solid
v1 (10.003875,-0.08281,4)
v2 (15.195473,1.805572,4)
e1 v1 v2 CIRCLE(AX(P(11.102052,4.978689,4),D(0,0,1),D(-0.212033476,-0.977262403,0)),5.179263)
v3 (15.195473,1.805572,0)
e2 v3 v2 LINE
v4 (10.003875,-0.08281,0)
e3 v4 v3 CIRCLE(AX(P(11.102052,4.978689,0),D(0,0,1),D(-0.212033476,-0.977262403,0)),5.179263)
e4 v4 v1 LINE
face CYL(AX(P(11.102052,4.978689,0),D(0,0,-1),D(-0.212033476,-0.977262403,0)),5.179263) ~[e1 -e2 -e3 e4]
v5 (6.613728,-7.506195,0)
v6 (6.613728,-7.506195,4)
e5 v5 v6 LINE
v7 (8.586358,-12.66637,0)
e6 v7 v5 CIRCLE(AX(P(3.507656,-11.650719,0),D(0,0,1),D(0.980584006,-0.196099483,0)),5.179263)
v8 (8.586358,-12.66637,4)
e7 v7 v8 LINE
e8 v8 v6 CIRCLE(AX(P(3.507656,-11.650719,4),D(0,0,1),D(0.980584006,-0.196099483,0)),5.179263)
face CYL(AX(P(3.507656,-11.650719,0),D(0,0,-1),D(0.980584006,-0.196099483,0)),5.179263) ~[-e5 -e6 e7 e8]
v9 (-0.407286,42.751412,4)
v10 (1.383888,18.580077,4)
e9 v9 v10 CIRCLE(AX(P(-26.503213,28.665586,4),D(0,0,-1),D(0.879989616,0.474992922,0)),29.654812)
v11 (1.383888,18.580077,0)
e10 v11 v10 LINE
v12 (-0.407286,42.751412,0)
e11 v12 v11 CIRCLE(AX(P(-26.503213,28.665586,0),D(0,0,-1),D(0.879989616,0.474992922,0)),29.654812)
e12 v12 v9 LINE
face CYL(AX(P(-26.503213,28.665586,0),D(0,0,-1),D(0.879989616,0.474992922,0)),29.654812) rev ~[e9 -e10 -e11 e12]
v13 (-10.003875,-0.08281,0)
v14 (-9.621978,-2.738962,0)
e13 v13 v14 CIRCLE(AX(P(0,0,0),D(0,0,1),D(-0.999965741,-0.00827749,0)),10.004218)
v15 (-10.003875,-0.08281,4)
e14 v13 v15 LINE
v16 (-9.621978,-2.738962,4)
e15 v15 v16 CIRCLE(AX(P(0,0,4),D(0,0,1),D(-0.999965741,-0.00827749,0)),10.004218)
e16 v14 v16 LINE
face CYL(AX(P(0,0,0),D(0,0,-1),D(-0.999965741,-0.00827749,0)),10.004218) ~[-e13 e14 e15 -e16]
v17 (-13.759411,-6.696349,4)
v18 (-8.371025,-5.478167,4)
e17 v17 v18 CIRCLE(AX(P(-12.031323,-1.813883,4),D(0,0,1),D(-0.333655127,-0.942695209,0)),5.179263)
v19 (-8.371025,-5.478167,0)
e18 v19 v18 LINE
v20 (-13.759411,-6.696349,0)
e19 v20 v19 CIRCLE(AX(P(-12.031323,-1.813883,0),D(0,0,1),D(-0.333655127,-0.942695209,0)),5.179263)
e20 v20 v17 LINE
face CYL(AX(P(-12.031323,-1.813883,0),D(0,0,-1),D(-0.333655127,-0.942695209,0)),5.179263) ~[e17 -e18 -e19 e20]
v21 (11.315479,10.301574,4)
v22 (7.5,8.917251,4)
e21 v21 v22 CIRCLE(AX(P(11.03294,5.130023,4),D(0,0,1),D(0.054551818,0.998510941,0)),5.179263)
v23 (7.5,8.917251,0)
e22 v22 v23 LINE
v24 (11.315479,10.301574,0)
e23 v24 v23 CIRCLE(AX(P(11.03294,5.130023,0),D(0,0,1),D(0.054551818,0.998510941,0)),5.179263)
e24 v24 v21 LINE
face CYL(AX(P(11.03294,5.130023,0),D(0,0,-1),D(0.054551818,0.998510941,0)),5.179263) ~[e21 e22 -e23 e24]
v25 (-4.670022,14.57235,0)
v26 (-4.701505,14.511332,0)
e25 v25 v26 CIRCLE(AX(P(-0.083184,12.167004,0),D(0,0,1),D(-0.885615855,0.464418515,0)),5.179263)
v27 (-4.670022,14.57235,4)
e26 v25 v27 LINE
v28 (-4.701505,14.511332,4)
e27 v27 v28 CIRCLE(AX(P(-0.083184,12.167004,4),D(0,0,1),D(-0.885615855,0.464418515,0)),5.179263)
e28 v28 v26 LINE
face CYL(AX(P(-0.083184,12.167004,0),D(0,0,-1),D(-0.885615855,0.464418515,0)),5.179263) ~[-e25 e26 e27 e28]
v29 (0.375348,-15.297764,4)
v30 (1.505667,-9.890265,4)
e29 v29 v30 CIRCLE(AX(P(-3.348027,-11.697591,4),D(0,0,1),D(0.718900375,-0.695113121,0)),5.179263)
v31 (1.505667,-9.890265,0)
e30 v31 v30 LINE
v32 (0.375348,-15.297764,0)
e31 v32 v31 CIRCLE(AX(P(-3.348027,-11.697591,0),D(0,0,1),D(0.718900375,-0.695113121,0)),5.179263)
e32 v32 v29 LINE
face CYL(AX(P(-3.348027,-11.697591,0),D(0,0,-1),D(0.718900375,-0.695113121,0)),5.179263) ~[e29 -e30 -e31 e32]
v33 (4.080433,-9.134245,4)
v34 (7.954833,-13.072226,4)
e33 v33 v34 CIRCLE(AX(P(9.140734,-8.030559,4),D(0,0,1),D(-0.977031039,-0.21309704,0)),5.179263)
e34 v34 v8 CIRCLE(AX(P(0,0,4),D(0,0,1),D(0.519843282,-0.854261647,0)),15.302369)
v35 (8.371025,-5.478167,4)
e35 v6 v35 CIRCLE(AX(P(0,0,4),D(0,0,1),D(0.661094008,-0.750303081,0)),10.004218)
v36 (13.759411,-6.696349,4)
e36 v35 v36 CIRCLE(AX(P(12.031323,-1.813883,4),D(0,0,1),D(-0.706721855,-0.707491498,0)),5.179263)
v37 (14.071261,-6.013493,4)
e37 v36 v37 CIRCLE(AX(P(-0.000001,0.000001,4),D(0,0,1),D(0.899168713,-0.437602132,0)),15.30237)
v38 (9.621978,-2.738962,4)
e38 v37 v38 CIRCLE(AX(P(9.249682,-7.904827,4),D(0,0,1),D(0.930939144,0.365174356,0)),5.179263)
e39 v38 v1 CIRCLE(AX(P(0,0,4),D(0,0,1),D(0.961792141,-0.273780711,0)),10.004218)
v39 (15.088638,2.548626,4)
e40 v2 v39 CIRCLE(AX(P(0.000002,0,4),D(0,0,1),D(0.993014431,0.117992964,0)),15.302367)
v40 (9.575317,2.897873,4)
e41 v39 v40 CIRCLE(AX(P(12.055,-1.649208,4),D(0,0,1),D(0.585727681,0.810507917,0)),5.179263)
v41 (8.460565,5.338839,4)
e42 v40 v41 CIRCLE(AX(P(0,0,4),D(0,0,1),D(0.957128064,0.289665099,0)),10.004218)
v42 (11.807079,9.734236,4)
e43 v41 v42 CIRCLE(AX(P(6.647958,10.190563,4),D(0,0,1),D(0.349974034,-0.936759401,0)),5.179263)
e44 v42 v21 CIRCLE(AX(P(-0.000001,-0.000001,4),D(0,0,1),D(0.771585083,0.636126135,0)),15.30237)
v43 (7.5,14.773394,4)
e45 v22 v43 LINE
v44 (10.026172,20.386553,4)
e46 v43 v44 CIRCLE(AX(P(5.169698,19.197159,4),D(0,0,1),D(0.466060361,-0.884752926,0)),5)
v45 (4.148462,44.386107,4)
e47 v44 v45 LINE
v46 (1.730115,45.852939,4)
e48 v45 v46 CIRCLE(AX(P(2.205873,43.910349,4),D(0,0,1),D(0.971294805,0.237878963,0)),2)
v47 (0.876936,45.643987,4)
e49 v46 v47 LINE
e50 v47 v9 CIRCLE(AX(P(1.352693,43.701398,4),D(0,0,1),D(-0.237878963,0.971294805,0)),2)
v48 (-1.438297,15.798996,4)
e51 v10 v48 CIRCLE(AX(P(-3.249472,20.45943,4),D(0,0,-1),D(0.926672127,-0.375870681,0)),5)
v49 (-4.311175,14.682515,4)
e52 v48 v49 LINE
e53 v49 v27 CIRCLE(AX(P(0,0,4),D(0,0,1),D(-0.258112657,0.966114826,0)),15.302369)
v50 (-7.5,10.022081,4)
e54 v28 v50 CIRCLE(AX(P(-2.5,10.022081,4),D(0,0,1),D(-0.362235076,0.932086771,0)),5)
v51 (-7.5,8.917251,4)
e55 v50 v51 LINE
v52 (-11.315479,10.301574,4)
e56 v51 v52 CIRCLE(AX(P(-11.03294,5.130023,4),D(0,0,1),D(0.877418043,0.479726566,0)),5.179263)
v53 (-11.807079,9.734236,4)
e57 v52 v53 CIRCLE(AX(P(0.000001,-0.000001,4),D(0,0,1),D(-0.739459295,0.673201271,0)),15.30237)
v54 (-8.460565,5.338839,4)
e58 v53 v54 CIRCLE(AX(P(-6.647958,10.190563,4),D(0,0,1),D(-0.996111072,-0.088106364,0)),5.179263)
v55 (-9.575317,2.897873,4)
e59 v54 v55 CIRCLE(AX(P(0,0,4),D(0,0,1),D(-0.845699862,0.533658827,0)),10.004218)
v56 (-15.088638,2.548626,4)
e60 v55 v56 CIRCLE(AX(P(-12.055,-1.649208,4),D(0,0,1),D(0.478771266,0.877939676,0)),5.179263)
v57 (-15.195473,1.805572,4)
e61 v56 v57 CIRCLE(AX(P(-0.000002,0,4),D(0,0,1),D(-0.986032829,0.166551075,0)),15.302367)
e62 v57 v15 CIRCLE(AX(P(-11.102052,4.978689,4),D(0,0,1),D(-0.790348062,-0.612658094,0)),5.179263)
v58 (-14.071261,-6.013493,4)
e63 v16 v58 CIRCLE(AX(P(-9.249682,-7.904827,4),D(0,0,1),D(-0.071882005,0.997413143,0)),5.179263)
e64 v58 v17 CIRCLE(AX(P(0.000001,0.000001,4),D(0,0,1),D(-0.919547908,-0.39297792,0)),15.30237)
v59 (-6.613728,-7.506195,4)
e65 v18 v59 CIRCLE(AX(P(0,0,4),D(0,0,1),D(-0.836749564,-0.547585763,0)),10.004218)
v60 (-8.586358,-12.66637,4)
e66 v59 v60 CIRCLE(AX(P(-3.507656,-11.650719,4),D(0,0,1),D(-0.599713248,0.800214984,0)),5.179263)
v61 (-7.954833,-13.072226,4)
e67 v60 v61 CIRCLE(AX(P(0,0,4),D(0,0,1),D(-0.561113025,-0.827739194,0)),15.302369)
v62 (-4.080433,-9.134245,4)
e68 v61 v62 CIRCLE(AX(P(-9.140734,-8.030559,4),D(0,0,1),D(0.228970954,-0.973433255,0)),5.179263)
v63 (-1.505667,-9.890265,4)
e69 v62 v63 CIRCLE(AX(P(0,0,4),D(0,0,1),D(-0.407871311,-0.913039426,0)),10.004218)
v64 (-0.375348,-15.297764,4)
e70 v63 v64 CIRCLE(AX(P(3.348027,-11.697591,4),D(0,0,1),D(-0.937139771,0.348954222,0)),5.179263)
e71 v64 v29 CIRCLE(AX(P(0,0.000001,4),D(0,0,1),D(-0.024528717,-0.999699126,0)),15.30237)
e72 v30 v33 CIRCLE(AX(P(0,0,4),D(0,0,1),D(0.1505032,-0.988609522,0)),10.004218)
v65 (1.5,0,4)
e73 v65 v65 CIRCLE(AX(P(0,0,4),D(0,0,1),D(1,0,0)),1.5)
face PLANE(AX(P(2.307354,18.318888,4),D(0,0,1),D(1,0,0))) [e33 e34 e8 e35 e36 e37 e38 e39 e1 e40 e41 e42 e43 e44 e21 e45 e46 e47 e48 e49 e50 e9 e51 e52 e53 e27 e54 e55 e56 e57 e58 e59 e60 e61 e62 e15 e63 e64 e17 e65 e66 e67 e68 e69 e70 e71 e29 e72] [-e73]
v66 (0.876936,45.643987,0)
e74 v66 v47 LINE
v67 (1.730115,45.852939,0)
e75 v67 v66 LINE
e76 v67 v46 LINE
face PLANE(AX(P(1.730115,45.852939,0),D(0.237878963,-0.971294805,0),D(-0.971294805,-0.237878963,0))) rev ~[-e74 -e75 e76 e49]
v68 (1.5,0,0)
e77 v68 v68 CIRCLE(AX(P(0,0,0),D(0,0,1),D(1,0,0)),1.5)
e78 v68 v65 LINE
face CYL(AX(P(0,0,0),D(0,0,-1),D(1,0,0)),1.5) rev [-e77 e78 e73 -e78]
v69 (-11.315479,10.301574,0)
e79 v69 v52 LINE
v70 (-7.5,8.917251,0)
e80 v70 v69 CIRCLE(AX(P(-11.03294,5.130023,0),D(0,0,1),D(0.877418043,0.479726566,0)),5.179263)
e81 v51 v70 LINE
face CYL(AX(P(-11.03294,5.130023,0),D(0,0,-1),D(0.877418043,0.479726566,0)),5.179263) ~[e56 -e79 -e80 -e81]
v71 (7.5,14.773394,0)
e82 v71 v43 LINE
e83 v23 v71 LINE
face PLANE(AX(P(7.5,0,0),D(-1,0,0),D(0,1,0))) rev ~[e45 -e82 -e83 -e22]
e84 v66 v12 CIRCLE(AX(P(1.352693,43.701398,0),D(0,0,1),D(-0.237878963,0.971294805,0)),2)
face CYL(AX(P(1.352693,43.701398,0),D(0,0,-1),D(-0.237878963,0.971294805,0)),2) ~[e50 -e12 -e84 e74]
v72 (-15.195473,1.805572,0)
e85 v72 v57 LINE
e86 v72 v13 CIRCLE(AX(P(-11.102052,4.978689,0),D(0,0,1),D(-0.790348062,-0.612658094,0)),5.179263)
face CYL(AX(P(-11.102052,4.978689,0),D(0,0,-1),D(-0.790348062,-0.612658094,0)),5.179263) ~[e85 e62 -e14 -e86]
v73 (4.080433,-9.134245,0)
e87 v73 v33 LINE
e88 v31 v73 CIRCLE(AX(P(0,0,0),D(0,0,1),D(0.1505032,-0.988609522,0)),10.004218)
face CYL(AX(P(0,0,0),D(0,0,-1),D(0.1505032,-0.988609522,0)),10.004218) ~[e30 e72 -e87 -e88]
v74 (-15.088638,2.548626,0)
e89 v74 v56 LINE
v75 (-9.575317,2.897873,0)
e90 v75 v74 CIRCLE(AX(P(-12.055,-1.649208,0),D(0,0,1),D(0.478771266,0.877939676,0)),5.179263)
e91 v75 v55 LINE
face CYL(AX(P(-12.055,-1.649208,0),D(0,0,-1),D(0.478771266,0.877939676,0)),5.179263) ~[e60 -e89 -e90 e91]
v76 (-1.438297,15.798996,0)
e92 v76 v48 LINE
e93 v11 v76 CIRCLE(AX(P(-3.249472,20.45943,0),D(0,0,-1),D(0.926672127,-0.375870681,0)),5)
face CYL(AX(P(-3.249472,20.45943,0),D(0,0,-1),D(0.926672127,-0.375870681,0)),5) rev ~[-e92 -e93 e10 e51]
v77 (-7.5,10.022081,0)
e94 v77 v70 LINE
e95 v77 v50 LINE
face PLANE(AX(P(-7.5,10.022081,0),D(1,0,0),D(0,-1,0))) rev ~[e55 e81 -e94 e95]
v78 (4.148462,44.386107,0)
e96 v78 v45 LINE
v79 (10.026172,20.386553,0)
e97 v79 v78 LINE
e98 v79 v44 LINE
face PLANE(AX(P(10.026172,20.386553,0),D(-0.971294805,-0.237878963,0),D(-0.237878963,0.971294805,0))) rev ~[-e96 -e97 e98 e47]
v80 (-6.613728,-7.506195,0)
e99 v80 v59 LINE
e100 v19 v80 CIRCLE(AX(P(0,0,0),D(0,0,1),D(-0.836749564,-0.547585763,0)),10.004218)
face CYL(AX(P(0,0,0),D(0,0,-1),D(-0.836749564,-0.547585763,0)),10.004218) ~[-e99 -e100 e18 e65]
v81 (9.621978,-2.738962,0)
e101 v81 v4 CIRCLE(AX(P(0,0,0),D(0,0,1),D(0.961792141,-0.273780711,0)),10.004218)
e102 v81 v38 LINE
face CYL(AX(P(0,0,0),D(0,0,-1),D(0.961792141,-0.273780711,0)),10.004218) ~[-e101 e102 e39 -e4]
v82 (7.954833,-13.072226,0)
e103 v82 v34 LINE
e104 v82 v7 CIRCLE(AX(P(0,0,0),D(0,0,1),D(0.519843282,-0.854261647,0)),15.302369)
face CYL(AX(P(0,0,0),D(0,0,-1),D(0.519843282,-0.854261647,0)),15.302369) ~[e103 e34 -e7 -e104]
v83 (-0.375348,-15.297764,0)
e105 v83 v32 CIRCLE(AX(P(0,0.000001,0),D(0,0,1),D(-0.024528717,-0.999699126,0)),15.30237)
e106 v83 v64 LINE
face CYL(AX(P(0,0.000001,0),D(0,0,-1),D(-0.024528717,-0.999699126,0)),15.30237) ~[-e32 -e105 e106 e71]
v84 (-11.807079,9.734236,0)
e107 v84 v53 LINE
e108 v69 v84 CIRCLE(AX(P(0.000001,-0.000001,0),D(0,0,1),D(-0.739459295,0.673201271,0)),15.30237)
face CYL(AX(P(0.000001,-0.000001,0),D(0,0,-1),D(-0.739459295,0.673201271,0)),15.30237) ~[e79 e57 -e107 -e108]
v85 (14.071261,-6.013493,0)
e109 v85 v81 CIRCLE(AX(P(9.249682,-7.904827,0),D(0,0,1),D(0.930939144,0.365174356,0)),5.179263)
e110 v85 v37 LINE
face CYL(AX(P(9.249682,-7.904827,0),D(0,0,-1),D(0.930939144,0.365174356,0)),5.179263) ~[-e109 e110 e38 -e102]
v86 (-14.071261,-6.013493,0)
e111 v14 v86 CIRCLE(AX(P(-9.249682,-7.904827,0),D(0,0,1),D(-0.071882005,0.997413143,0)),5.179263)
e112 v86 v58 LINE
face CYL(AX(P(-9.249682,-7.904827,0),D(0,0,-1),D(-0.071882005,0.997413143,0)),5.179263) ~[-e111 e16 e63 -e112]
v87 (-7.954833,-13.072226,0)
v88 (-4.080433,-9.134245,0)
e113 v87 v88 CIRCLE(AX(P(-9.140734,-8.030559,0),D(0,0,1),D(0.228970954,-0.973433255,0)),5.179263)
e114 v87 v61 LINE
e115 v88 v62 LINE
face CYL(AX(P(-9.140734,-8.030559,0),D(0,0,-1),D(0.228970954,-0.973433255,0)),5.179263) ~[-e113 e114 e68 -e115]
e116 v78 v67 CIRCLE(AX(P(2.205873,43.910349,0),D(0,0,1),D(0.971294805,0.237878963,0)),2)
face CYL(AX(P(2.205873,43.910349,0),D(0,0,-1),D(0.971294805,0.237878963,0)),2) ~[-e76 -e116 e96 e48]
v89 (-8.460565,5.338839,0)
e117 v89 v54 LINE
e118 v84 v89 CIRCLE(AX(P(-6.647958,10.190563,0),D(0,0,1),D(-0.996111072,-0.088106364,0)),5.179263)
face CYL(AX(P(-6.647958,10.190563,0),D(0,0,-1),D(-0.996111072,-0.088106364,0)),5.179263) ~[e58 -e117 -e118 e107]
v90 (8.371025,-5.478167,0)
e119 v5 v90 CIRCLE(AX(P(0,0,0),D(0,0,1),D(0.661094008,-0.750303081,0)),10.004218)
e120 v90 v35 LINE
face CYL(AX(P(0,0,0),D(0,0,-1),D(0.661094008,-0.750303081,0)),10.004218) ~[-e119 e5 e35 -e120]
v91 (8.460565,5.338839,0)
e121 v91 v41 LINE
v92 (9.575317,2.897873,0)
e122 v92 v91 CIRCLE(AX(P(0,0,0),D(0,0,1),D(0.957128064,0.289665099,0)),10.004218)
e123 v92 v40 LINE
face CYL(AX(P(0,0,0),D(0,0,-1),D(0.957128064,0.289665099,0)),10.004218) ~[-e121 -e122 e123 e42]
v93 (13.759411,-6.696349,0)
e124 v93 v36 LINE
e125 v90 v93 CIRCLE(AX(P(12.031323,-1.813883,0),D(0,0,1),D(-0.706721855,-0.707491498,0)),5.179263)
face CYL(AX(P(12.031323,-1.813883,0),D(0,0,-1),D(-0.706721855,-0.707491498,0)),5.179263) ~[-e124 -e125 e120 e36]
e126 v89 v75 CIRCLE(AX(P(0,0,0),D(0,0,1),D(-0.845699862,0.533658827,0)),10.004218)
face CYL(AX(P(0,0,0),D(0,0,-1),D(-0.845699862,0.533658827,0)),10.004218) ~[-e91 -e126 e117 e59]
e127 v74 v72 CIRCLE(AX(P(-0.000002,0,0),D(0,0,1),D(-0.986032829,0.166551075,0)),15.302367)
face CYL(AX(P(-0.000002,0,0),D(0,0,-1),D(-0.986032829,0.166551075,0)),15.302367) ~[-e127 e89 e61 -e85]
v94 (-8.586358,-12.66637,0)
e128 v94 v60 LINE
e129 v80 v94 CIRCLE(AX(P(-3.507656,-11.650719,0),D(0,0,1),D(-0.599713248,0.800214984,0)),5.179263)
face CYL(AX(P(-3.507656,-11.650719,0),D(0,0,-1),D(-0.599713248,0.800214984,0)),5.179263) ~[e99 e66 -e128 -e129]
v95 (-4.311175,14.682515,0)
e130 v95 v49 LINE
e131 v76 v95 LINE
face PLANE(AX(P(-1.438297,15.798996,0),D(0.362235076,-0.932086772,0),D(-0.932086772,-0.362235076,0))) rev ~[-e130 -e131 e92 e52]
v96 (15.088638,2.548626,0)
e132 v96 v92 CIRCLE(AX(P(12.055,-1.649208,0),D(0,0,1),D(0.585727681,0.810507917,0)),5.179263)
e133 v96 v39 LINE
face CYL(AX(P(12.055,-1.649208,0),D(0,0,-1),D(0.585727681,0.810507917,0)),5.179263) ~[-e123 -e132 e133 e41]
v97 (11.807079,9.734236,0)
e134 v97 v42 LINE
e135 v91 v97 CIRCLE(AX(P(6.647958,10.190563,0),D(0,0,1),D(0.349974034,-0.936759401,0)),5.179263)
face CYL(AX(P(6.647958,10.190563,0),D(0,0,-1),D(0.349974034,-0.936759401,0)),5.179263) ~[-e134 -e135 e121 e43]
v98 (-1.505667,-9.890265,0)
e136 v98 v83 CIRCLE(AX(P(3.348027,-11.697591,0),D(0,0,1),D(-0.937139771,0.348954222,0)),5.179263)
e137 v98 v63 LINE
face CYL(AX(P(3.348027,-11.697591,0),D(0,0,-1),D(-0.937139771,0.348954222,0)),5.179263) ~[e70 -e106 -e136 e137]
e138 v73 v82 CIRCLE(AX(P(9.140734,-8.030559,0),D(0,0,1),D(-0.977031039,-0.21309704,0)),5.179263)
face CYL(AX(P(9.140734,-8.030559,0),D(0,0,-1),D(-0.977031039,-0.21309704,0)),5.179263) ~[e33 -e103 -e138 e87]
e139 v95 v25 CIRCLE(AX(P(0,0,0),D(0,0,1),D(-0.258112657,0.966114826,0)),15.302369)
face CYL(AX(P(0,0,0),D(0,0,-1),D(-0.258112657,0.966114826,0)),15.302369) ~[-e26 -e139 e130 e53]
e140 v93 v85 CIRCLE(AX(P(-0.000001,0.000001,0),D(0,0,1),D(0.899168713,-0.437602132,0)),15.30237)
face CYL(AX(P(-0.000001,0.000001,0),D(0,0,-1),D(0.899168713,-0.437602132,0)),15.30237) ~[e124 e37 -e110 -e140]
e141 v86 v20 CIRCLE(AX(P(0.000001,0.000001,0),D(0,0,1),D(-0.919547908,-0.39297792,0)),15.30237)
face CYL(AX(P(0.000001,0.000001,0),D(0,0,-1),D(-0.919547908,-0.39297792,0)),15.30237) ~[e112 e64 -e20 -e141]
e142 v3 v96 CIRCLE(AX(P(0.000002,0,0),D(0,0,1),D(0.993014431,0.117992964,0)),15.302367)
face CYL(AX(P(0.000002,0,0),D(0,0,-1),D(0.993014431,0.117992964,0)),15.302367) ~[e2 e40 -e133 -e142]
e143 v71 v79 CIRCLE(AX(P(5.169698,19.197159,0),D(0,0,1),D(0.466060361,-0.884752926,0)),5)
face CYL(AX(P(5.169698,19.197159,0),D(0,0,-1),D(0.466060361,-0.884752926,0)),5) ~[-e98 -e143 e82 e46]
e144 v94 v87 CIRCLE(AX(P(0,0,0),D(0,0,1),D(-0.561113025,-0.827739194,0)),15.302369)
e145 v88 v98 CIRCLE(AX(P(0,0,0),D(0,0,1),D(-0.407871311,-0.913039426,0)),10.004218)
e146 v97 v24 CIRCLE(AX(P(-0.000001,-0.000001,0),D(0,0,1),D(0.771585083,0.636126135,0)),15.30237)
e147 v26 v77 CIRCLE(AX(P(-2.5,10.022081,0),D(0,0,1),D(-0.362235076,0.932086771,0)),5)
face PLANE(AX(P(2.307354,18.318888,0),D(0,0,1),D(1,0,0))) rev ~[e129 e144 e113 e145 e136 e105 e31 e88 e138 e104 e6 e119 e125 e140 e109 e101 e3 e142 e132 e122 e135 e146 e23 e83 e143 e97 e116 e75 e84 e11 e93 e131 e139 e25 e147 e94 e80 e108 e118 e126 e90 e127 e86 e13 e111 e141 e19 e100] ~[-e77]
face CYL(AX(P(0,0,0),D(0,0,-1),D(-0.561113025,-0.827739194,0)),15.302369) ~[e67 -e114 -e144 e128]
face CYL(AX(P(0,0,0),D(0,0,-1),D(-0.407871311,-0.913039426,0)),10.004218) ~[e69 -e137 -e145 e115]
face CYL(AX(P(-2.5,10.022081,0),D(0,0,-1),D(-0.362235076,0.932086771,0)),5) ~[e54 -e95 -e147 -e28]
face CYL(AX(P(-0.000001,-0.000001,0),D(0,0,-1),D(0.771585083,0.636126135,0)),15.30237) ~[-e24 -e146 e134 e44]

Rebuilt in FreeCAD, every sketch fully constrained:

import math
import FreeCAD as App
import Part
import Sketcher
Q = App.Units.Quantity

doc = App.newDocument("Part")
body = doc.addObject("PartDesign::Body", "Body")

# Sketch on XY plane
sketch1 = doc.addObject("Sketcher::SketchObject", "Sketch")
body.addObject(sketch1)
sketch1.AttachmentSupport = (doc.XY_Plane, [""])
sketch1.MapMode = "FlatFace"
sketch1.addGeometry(Part.ArcOfCircle(Part.Circle(App.Vector(9.2, -7.9, 0), App.Vector(0, 0, 1), 5.2), math.radians(21), math.radians(86)), False)
sketch1.addGeometry(Part.ArcOfCircle(Part.Circle(App.Vector(0, 0, 0), App.Vector(0, 0, 1), 10), math.radians(-15.89), math.radians(-0.47)), False)
sketch1.addGeometry(Part.ArcOfCircle(Part.Circle(App.Vector(11.1, 5, 0), App.Vector(0, 0, 1), 5.2), math.radians(-102), math.radians(-38)), False)
sketch1.addGeometry(Part.ArcOfCircle(Part.Circle(App.Vector(0, 0, 0), App.Vector(0, 0, 1), 15.3), math.radians(6.78), math.radians(9.59)), False)
sketch1.addGeometry(Part.ArcOfCircle(Part.Circle(App.Vector(12.1, -1.6, 0), App.Vector(0, 0, 1), 5.2), math.radians(54), math.radians(119)), False)
sketch1.addGeometry(Part.ArcOfCircle(Part.Circle(App.Vector(0, 0, 0), App.Vector(0, 0, 1), 10), math.radians(16.84), math.radians(32.25)), False)
sketch1.addGeometry(Part.ArcOfCircle(Part.Circle(App.Vector(6.6, 10.2, 0), App.Vector(0, 0, 1), 5.2), math.radians(-70), math.radians(-5)), False)
sketch1.addGeometry(Part.ArcOfCircle(Part.Circle(App.Vector(0, 0, 0), App.Vector(0, 0, 1), 15.3), math.radians(39.5), math.radians(42.31)), False)
sketch1.addGeometry(Part.ArcOfCircle(Part.Circle(App.Vector(11, 5.1, 0), App.Vector(0, 0, 1), 5.2), math.radians(87), math.radians(151)), False)
sketch1.addGeometry(Part.ArcOfCircle(Part.Circle(App.Vector(0, 0, 0), App.Vector(0, 0, 1), 10), math.radians(49.57), math.radians(64.98)), False)
sketch1.addGeometry(Part.ArcOfCircle(Part.Circle(App.Vector(0.1, 12.2, 0), App.Vector(0, 0, 1), 5.2), math.radians(-37), math.radians(28)), False)
sketch1.addGeometry(Part.ArcOfCircle(Part.Circle(App.Vector(0, 0, 0), App.Vector(0, 0, 1), 15.3), math.radians(72.23), math.radians(75.04)), False)
sketch1.addGeometry(Part.ArcOfCircle(Part.Circle(App.Vector(6.5, 10.3, 0), App.Vector(0, 0, 1), 5.2), math.radians(120), math.radians(184)), False)
sketch1.addGeometry(Part.ArcOfCircle(Part.Circle(App.Vector(0, 0, 0), App.Vector(0, 0, 1), 10), math.radians(82.29), math.radians(97.71)), False)
sketch1.addGeometry(Part.ArcOfCircle(Part.Circle(App.Vector(-6.5, 10.3, 0), App.Vector(0, 0, 1), 5.2), math.radians(-4), math.radians(60)), False)
sketch1.addGeometry(Part.ArcOfCircle(Part.Circle(App.Vector(0, 0, 0), App.Vector(0, 0, 1), 15.3), math.radians(104.96), math.radians(107.77)), False)
sketch1.addGeometry(Part.ArcOfCircle(Part.Circle(App.Vector(-0.1, 12.2, 0), App.Vector(0, 0, 1), 5.2), math.radians(152), math.radians(217)), False)
sketch1.addGeometry(Part.ArcOfCircle(Part.Circle(App.Vector(0, 0, 0), App.Vector(0, 0, 1), 10), math.radians(115.02), math.radians(130.43)), False)
sketch1.addGeometry(Part.ArcOfCircle(Part.Circle(App.Vector(-11, 5.1, 0), App.Vector(0, 0, 1), 5.2), math.radians(29), math.radians(93)), False)
sketch1.addGeometry(Part.ArcOfCircle(Part.Circle(App.Vector(0, 0, 0), App.Vector(0, 0, 1), 15.3), math.radians(137.69), math.radians(140.5)), False)
sketch1.addGeometry(Part.ArcOfCircle(Part.Circle(App.Vector(-6.6, 10.2, 0), App.Vector(0, 0, 1), 5.2), math.radians(-175), math.radians(-110)), False)
sketch1.addGeometry(Part.ArcOfCircle(Part.Circle(App.Vector(0, 0, 0), App.Vector(0, 0, 1), 10), math.radians(147.75), math.radians(163.16)), False)
sketch1.addGeometry(Part.ArcOfCircle(Part.Circle(App.Vector(-12.1, -1.6, 0), App.Vector(0, 0, 1), 5.2), math.radians(61), math.radians(126)), False)
sketch1.addGeometry(Part.ArcOfCircle(Part.Circle(App.Vector(0, 0, 0), App.Vector(0, 0, 1), 15.3), math.radians(170.41), math.radians(173.22)), False)
sketch1.addGeometry(Part.ArcOfCircle(Part.Circle(App.Vector(-11.1, 5, 0), App.Vector(0, 0, 1), 5.2), math.radians(-142), math.radians(-78)), False)
sketch1.addGeometry(Part.ArcOfCircle(Part.Circle(App.Vector(0, 0, 0), App.Vector(0, 0, 1), 10), math.radians(-179.53), math.radians(-164.11)), False)
sketch1.addGeometry(Part.ArcOfCircle(Part.Circle(App.Vector(-9.2, -7.9, 0), App.Vector(0, 0, 1), 5.2), math.radians(94), math.radians(159)), False)
sketch1.addGeometry(Part.ArcOfCircle(Part.Circle(App.Vector(0, 0, 0), App.Vector(0, 0, 1), 15.3), math.radians(-156.86), math.radians(-154.05)), False)
sketch1.addGeometry(Part.ArcOfCircle(Part.Circle(App.Vector(-12, -1.8, 0), App.Vector(0, 0, 1), 5.2), math.radians(-109), math.radians(-45)), False)
sketch1.addGeometry(Part.ArcOfCircle(Part.Circle(App.Vector(0, 0, 0), App.Vector(0, 0, 1), 10), math.radians(-146.8), math.radians(-131.38)), False)
sketch1.addGeometry(Part.ArcOfCircle(Part.Circle(App.Vector(-3.5, -11.7, 0), App.Vector(0, 0, 1), 5.2), math.radians(127), math.radians(191)), False)
sketch1.addGeometry(Part.ArcOfCircle(Part.Circle(App.Vector(0, 0, 0), App.Vector(0, 0, 1), 15.3), math.radians(-124.13), math.radians(-121.32)), False)
sketch1.addGeometry(Part.ArcOfCircle(Part.Circle(App.Vector(-9.1, -8, 0), App.Vector(0, 0, 1), 5.2), math.radians(-77), math.radians(-12)), False)
sketch1.addGeometry(Part.ArcOfCircle(Part.Circle(App.Vector(0, 0, 0), App.Vector(0, 0, 1), 10), math.radians(-114.07), math.radians(-98.66)), False)
sketch1.addGeometry(Part.ArcOfCircle(Part.Circle(App.Vector(3.3, -11.7, 0), App.Vector(0, 0, 1), 5.2), math.radians(160), math.radians(224)), False)
sketch1.addGeometry(Part.ArcOfCircle(Part.Circle(App.Vector(0, 0, 0), App.Vector(0, 0, 1), 15.3), math.radians(-91.41), math.radians(-88.59)), False)
sketch1.addGeometry(Part.ArcOfCircle(Part.Circle(App.Vector(-3.3, -11.7, 0), App.Vector(0, 0, 1), 5.2), math.radians(-44), math.radians(20)), False)
sketch1.addGeometry(Part.ArcOfCircle(Part.Circle(App.Vector(0, 0, 0), App.Vector(0, 0, 1), 10), math.radians(-81.34), math.radians(-65.93)), False)
sketch1.addGeometry(Part.ArcOfCircle(Part.Circle(App.Vector(9.1, -8, 0), App.Vector(0, 0, 1), 5.2), math.radians(-168), math.radians(-103)), False)
sketch1.addGeometry(Part.ArcOfCircle(Part.Circle(App.Vector(0, 0, 0), App.Vector(0, 0, 1), 15.3), math.radians(-58.68), math.radians(-55.87)), False)
sketch1.addGeometry(Part.ArcOfCircle(Part.Circle(App.Vector(3.5, -11.7, 0), App.Vector(0, 0, 1), 5.2), math.radians(-11), math.radians(53)), False)
sketch1.addGeometry(Part.ArcOfCircle(Part.Circle(App.Vector(0, 0, 0), App.Vector(0, 0, 1), 10), math.radians(-48.62), math.radians(-33.2)), False)
sketch1.addGeometry(Part.ArcOfCircle(Part.Circle(App.Vector(12, -1.8, 0), App.Vector(0, 0, 1), 5.2), math.radians(-135), math.radians(-71)), False)
sketch1.addGeometry(Part.ArcOfCircle(Part.Circle(App.Vector(0, 0, 0), App.Vector(0, 0, 1), 15.3), math.radians(-25.95), math.radians(-23.14)), False)
sketch1.addGeometry(Part.Circle(App.Vector(0, 0, 0), App.Vector(0, 0, 1), 1.5), False)
sketch1.addConstraint(Sketcher.Constraint("Coincident", 0, 2, 1, 1))
sketch1.addConstraint(Sketcher.Constraint("Coincident", 1, 2, 2, 1))
sketch1.addConstraint(Sketcher.Constraint("Coincident", 2, 2, 3, 1))
sketch1.addConstraint(Sketcher.Constraint("Coincident", 3, 2, 4, 1))
sketch1.addConstraint(Sketcher.Constraint("Coincident", 4, 2, 5, 1))
sketch1.addConstraint(Sketcher.Constraint("Coincident", 5, 2, 6, 1))
sketch1.addConstraint(Sketcher.Constraint("Coincident", 6, 2, 7, 1))
sketch1.addConstraint(Sketcher.Constraint("Coincident", 7, 2, 8, 1))
sketch1.addConstraint(Sketcher.Constraint("Coincident", 8, 2, 9, 1))
sketch1.addConstraint(Sketcher.Constraint("Coincident", 9, 2, 10, 1))
sketch1.addConstraint(Sketcher.Constraint("Coincident", 10, 2, 11, 1))
sketch1.addConstraint(Sketcher.Constraint("Coincident", 11, 2, 12, 1))
sketch1.addConstraint(Sketcher.Constraint("Coincident", 12, 2, 13, 1))
sketch1.addConstraint(Sketcher.Constraint("Coincident", 13, 2, 14, 1))
sketch1.addConstraint(Sketcher.Constraint("Coincident", 14, 2, 15, 1))
sketch1.addConstraint(Sketcher.Constraint("Coincident", 15, 2, 16, 1))
sketch1.addConstraint(Sketcher.Constraint("Coincident", 16, 2, 17, 1))
sketch1.addConstraint(Sketcher.Constraint("Coincident", 17, 2, 18, 1))
sketch1.addConstraint(Sketcher.Constraint("Coincident", 18, 2, 19, 1))
sketch1.addConstraint(Sketcher.Constraint("Coincident", 19, 2, 20, 1))
sketch1.addConstraint(Sketcher.Constraint("Coincident", 20, 2, 21, 1))
sketch1.addConstraint(Sketcher.Constraint("Coincident", 21, 2, 22, 1))
sketch1.addConstraint(Sketcher.Constraint("Coincident", 22, 2, 23, 1))
sketch1.addConstraint(Sketcher.Constraint("Coincident", 23, 2, 24, 1))
sketch1.addConstraint(Sketcher.Constraint("Coincident", 24, 2, 25, 1))
sketch1.addConstraint(Sketcher.Constraint("Coincident", 25, 2, 26, 1))
sketch1.addConstraint(Sketcher.Constraint("Coincident", 26, 2, 27, 1))
sketch1.addConstraint(Sketcher.Constraint("Coincident", 27, 2, 28, 1))
sketch1.addConstraint(Sketcher.Constraint("Coincident", 28, 2, 29, 1))
sketch1.addConstraint(Sketcher.Constraint("Coincident", 29, 2, 30, 1))
sketch1.addConstraint(Sketcher.Constraint("Coincident", 30, 2, 31, 1))
sketch1.addConstraint(Sketcher.Constraint("Coincident", 31, 2, 32, 1))
sketch1.addConstraint(Sketcher.Constraint("Coincident", 32, 2, 33, 1))
sketch1.addConstraint(Sketcher.Constraint("Coincident", 33, 2, 34, 1))
sketch1.addConstraint(Sketcher.Constraint("Coincident", 34, 2, 35, 1))
sketch1.addConstraint(Sketcher.Constraint("Coincident", 35, 2, 36, 1))
sketch1.addConstraint(Sketcher.Constraint("Coincident", 36, 2, 37, 1))
sketch1.addConstraint(Sketcher.Constraint("Coincident", 37, 2, 38, 1))
sketch1.addConstraint(Sketcher.Constraint("Coincident", 38, 2, 39, 1))
sketch1.addConstraint(Sketcher.Constraint("Coincident", 39, 2, 40, 1))
sketch1.addConstraint(Sketcher.Constraint("Coincident", 40, 2, 41, 1))
sketch1.addConstraint(Sketcher.Constraint("Coincident", 41, 2, 42, 1))
sketch1.addConstraint(Sketcher.Constraint("Coincident", 42, 2, 43, 1))
sketch1.addConstraint(Sketcher.Constraint("Coincident", 43, 2, 0, 1))
sketch1.addConstraint(Sketcher.Constraint("Coincident", 1, 3, -1, 1))
sketch1.addConstraint(Sketcher.Constraint("Coincident", 3, 3, -1, 1))
sketch1.addConstraint(Sketcher.Constraint("Coincident", 5, 3, -1, 1))
sketch1.addConstraint(Sketcher.Constraint("Coincident", 7, 3, -1, 1))
sketch1.addConstraint(Sketcher.Constraint("Coincident", 9, 3, -1, 1))
sketch1.addConstraint(Sketcher.Constraint("Coincident", 11, 3, -1, 1))
sketch1.addConstraint(Sketcher.Constraint("Coincident", 13, 3, -1, 1))
sketch1.addConstraint(Sketcher.Constraint("Coincident", 15, 3, -1, 1))
sketch1.addConstraint(Sketcher.Constraint("Coincident", 17, 3, -1, 1))
sketch1.addConstraint(Sketcher.Constraint("Coincident", 19, 3, -1, 1))
sketch1.addConstraint(Sketcher.Constraint("Coincident", 21, 3, -1, 1))
sketch1.addConstraint(Sketcher.Constraint("Coincident", 23, 3, -1, 1))
sketch1.addConstraint(Sketcher.Constraint("Coincident", 25, 3, -1, 1))
sketch1.addConstraint(Sketcher.Constraint("Coincident", 27, 3, -1, 1))
sketch1.addConstraint(Sketcher.Constraint("Coincident", 29, 3, -1, 1))
sketch1.addConstraint(Sketcher.Constraint("Coincident", 31, 3, -1, 1))
sketch1.addConstraint(Sketcher.Constraint("Coincident", 33, 3, -1, 1))
sketch1.addConstraint(Sketcher.Constraint("Coincident", 35, 3, -1, 1))
sketch1.addConstraint(Sketcher.Constraint("Coincident", 37, 3, -1, 1))
sketch1.addConstraint(Sketcher.Constraint("Coincident", 39, 3, -1, 1))
sketch1.addConstraint(Sketcher.Constraint("Coincident", 41, 3, -1, 1))
sketch1.addConstraint(Sketcher.Constraint("Coincident", 43, 3, -1, 1))
sketch1.addConstraint(Sketcher.Constraint("Coincident", 44, 3, -1, 1))
sketch1.addConstraint(Sketcher.Constraint("Equal", 0, 2))
sketch1.addConstraint(Sketcher.Constraint("Equal", 2, 4))
sketch1.addConstraint(Sketcher.Constraint("Equal", 1, 5))
sketch1.addConstraint(Sketcher.Constraint("Equal", 4, 6))
sketch1.addConstraint(Sketcher.Constraint("Equal", 6, 8))
sketch1.addConstraint(Sketcher.Constraint("Equal", 5, 9))
sketch1.addConstraint(Sketcher.Constraint("Equal", 8, 10))
sketch1.addConstraint(Sketcher.Constraint("Equal", 7, 11))
sketch1.addConstraint(Sketcher.Constraint("Equal", 10, 12))
sketch1.addConstraint(Sketcher.Constraint("Equal", 9, 13))
sketch1.addConstraint(Sketcher.Constraint("Equal", 12, 14))
sketch1.addConstraint(Sketcher.Constraint("Equal", 11, 15))
sketch1.addConstraint(Sketcher.Constraint("Equal", 14, 16))
sketch1.addConstraint(Sketcher.Constraint("Equal", 13, 17))
sketch1.addConstraint(Sketcher.Constraint("Equal", 16, 18))
sketch1.addConstraint(Sketcher.Constraint("Equal", 15, 19))
sketch1.addConstraint(Sketcher.Constraint("Equal", 18, 20))
sketch1.addConstraint(Sketcher.Constraint("Equal", 17, 21))
sketch1.addConstraint(Sketcher.Constraint("Equal", 20, 22))
sketch1.addConstraint(Sketcher.Constraint("Equal", 15, 23))
sketch1.addConstraint(Sketcher.Constraint("Equal", 22, 24))
sketch1.addConstraint(Sketcher.Constraint("Equal", 21, 25))
sketch1.addConstraint(Sketcher.Constraint("Equal", 24, 26))
sketch1.addConstraint(Sketcher.Constraint("Equal", 19, 27))
sketch1.addConstraint(Sketcher.Constraint("Equal", 26, 28))
sketch1.addConstraint(Sketcher.Constraint("Equal", 25, 29))
sketch1.addConstraint(Sketcher.Constraint("Equal", 28, 30))
sketch1.addConstraint(Sketcher.Constraint("Equal", 27, 31))
sketch1.addConstraint(Sketcher.Constraint("Equal", 30, 32))
sketch1.addConstraint(Sketcher.Constraint("Equal", 29, 33))
sketch1.addConstraint(Sketcher.Constraint("Equal", 32, 34))
sketch1.addConstraint(Sketcher.Constraint("Equal", 31, 35))
sketch1.addConstraint(Sketcher.Constraint("Equal", 34, 36))
sketch1.addConstraint(Sketcher.Constraint("Equal", 33, 37))
sketch1.addConstraint(Sketcher.Constraint("Equal", 36, 38))
sketch1.addConstraint(Sketcher.Constraint("Equal", 35, 39))
sketch1.addConstraint(Sketcher.Constraint("Equal", 38, 40))
sketch1.addConstraint(Sketcher.Constraint("Equal", 37, 41))
sketch1.addConstraint(Sketcher.Constraint("Equal", 40, 42))
sketch1.addConstraint(Sketcher.Constraint("Equal", 39, 43))
sketch1.addConstraint(Sketcher.Constraint("Symmetric", 12, 3, 14, 3, -2))
sketch1.addConstraint(Sketcher.Constraint("Symmetric", 10, 3, 16, 3, -2))
sketch1.addConstraint(Sketcher.Constraint("Symmetric", 8, 3, 18, 3, -2))
sketch1.addConstraint(Sketcher.Constraint("Symmetric", 6, 3, 20, 3, -2))
sketch1.addConstraint(Sketcher.Constraint("Symmetric", 4, 3, 22, 3, -2))
sketch1.addConstraint(Sketcher.Constraint("Symmetric", 2, 3, 24, 3, -2))
sketch1.addConstraint(Sketcher.Constraint("Symmetric", 0, 3, 26, 3, -2))
sketch1.addConstraint(Sketcher.Constraint("Symmetric", 34, 3, 36, 3, -2))
sketch1.addConstraint(Sketcher.Constraint("Symmetric", 32, 3, 38, 3, -2))
sketch1.addConstraint(Sketcher.Constraint("Symmetric", 30, 3, 40, 3, -2))
sketch1.addConstraint(Sketcher.Constraint("Symmetric", 28, 3, 42, 3, -2))
sketch1.addConstraint(Sketcher.Constraint("Horizontal", 3, 2, 22, 2))
sketch1.addConstraint(Sketcher.Constraint("Diameter", 44, Q("3 mm")))
sketch1.addConstraint(Sketcher.Constraint("Radius", 7, Q("15.30237 mm")))
sketch1.addConstraint(Sketcher.Constraint("DistanceX", -1, 1, 4, 3, Q("12.055 mm")))
sketch1.addConstraint(Sketcher.Constraint("DistanceX", -1, 1, 12, 3, Q("6.508 mm")))
sketch1.addConstraint(Sketcher.Constraint("Radius", 0, Q("5.179263 mm")))
sketch1.addConstraint(Sketcher.Constraint("Radius", 1, Q("10.004218 mm")))
sketch1.addConstraint(Sketcher.Constraint("DistanceY", -1, 1, 2, 3, Q("4.978689 mm")))
sketch1.addConstraint(Sketcher.Constraint("DistanceX", -1, 1, 8, 3, Q("11.03294 mm")))
sketch1.addConstraint(Sketcher.Constraint("DistanceY", 30, 3, -1, 1, Q("11.650719 mm")))
sketch1.addConstraint(Sketcher.Constraint("DistanceY", 32, 3, -1, 1, Q("8.030559 mm")))
sketch1.addConstraint(Sketcher.Constraint("DistanceY", 34, 3, -1, 1, Q("11.697591 mm")))
sketch1.addConstraint(Sketcher.Constraint("DistanceY", 0, 2, -1, 1, Q("2.738962 mm")))
sketch1.addConstraint(Sketcher.Constraint("DistanceY", 1, 2, -1, 1, Q("0.08281 mm")))
sketch1.addConstraint(Sketcher.Constraint("DistanceY", -1, 1, 5, 2, Q("5.338839 mm")))
sketch1.addConstraint(Sketcher.Constraint("DistanceX", -1, 1, 6, 2, Q("11.807079 mm")))
sketch1.addConstraint(Sketcher.Constraint("DistanceX", -1, 1, 7, 2, Q("11.315479 mm")))
sketch1.addConstraint(Sketcher.Constraint("DistanceX", -1, 1, 10, 2, Q("4.670022 mm")))
sketch1.addConstraint(Sketcher.Constraint("DistanceX", 26, 2, -1, 1, Q("14.071261 mm")))
sketch1.addConstraint(Sketcher.Constraint("DistanceX", 27, 2, -1, 1, Q("13.759411 mm")))
sketch1.addConstraint(Sketcher.Constraint("DistanceX", 29, 2, -1, 1, Q("6.613728 mm")))
sketch1.addConstraint(Sketcher.Constraint("DistanceY", 4, 3, -1, 1, Q("1.649208 mm")))
sketch1.addConstraint(Sketcher.Constraint("DistanceX", -1, 1, 10, 3, Q("0.083184 mm")))
sketch1.addConstraint(Sketcher.Constraint("DistanceY", -1, 1, 12, 3, Q("10.280508 mm")))
sketch1.addConstraint(Sketcher.Constraint("DistanceX", 28, 3, -1, 1, Q("12.031323 mm")))
sketch1.addConstraint(Sketcher.Constraint("DistanceX", 32, 3, -1, 1, Q("9.140734 mm")))
sketch1.addConstraint(Sketcher.Constraint("DistanceX", -1, 1, 34, 3, Q("3.348027 mm")))
pad1 = doc.addObject("PartDesign::Pad", "Pad")
body.addObject(pad1)
pad1.Profile = sketch1
pad1.Length = 4

# Sketch on XY plane
sketch2 = doc.addObject("Sketcher::SketchObject", "Sketch001")
body.addObject(sketch2)
sketch2.AttachmentSupport = (doc.XY_Plane, [""])
sketch2.MapMode = "FlatFace"
sketch2.addGeometry(Part.LineSegment(App.Vector(-7.5, 10.022081, 0), App.Vector(-7.5, 0, 0)), False)
sketch2.addGeometry(Part.ArcOfCircle(Part.Circle(App.Vector(0, 0, 0), App.Vector(0, 0, 1), 7.5), math.radians(180), math.radians(360)), False)
sketch2.addGeometry(Part.LineSegment(App.Vector(7.5, 0, 0), App.Vector(7.5, 14.773394, 0)), False)
sketch2.addGeometry(Part.ArcOfCircle(Part.Circle(App.Vector(5.169698, 19.197159, 0), App.Vector(0, 0, 1), 5), math.radians(-62.221132), math.radians(13.761389)), False)
sketch2.addGeometry(Part.LineSegment(App.Vector(10.026172, 20.386553, 0), App.Vector(4.148462, 44.386107, 0)), False)
sketch2.addGeometry(Part.ArcOfCircle(Part.Circle(App.Vector(2.205873, 43.910349, 0), App.Vector(0, 0, 1), 2), math.radians(13.761389), math.radians(103.761389)), False)
sketch2.addGeometry(Part.LineSegment(App.Vector(1.730115, 45.852939, 0), App.Vector(0.876936, 45.643987, 0)), False)
sketch2.addGeometry(Part.ArcOfCircle(Part.Circle(App.Vector(1.352693, 43.701398, 0), App.Vector(0, 0, 1), 2), math.radians(103.761389), math.radians(208.358889)), False)
sketch2.addGeometry(Part.ArcOfCircle(Part.Circle(App.Vector(-26.503213, 28.665586, 0), App.Vector(0, 0, 1), 29.654812), math.radians(-19.882777), math.radians(28.358889)), False)
sketch2.addGeometry(Part.ArcOfCircle(Part.Circle(App.Vector(-3.249472, 20.45943, 0), App.Vector(0, 0, 1), 5), math.radians(-68.762477), math.radians(-22.078136)), False)
sketch2.addGeometry(Part.LineSegment(App.Vector(-1.438297, 15.798996, 0), App.Vector(-4.311175, 14.682515, 0)), False)
sketch2.addGeometry(Part.ArcOfCircle(Part.Circle(App.Vector(-2.5, 10.022081, 0), App.Vector(0, 0, 1), 5), math.radians(111.237523), math.radians(180)), False)
sketch2.addGeometry(Part.Circle(App.Vector(0, 0, 0), App.Vector(0, 0, 1), 1.5), False)
sketch2.addConstraint(Sketcher.Constraint("Coincident", 0, 2, 1, 1))
sketch2.addConstraint(Sketcher.Constraint("Coincident", 1, 2, 2, 1))
sketch2.addConstraint(Sketcher.Constraint("Coincident", 2, 2, 3, 1))
sketch2.addConstraint(Sketcher.Constraint("Coincident", 3, 2, 4, 1))
sketch2.addConstraint(Sketcher.Constraint("Coincident", 4, 2, 5, 1))
sketch2.addConstraint(Sketcher.Constraint("Coincident", 5, 2, 6, 1))
sketch2.addConstraint(Sketcher.Constraint("Coincident", 6, 2, 7, 1))
sketch2.addConstraint(Sketcher.Constraint("Coincident", 7, 2, 8, 2))
sketch2.addConstraint(Sketcher.Constraint("Coincident", 8, 1, 9, 2))
sketch2.addConstraint(Sketcher.Constraint("Coincident", 9, 1, 10, 1))
sketch2.addConstraint(Sketcher.Constraint("Coincident", 10, 2, 11, 1))
sketch2.addConstraint(Sketcher.Constraint("Coincident", 11, 2, 0, 1))
sketch2.addConstraint(Sketcher.Constraint("Vertical", 0))
sketch2.addConstraint(Sketcher.Constraint("Vertical", 2))
sketch2.addConstraint(Sketcher.Constraint("Coincident", 1, 3, -1, 1))
sketch2.addConstraint(Sketcher.Constraint("Coincident", 12, 3, -1, 1))
sketch2.addConstraint(Sketcher.Constraint("PointOnObject", 0, 2, -1))
sketch2.addConstraint(Sketcher.Constraint("PointOnObject", 1, 2, -1))
sketch2.addConstraint(Sketcher.Constraint("Diameter", 12, Q("3 mm")))
sketch2.addConstraint(Sketcher.Constraint("Radius", 3, Q("5 mm")))
sketch2.addConstraint(Sketcher.Constraint("Radius", 5, Q("2 mm")))
sketch2.addConstraint(Sketcher.Constraint("Radius", 7, Q("2 mm")))
sketch2.addConstraint(Sketcher.Constraint("Radius", 9, Q("5 mm")))
sketch2.addConstraint(Sketcher.Constraint("Radius", 11, Q("5 mm")))
sketch2.addConstraint(Sketcher.Constraint("Radius", 1, Q("7.5 mm")))
sketch2.addConstraint(Sketcher.Constraint("Radius", 8, Q("29.654812 mm")))
sketch2.addConstraint(Sketcher.Constraint("Distance", 10, Q("3.0822 mm")))
sketch2.addConstraint(Sketcher.Constraint("DistanceY", 0, 2, 0, 1, Q("10.022081 mm")))
sketch2.addConstraint(Sketcher.Constraint("DistanceX", -1, 1, 3, 3, Q("5.169698 mm")))
sketch2.addConstraint(Sketcher.Constraint("DistanceX", 7, 2, 5, 2, Q("2.137401 mm")))
sketch2.addConstraint(Sketcher.Constraint("DistanceY", 2, 1, 2, 2, Q("14.773394 mm")))
sketch2.addConstraint(Sketcher.Constraint("DistanceY", -1, 1, 5, 3, Q("43.910349 mm")))
sketch2.addConstraint(Sketcher.Constraint("DistanceY", -1, 1, 9, 3, Q("20.45943 mm")))
sketch2.addConstraint(Sketcher.Constraint("DistanceY", -1, 1, 11, 3, Q("10.022081 mm")))
sketch2.addConstraint(Sketcher.Constraint("DistanceY", -1, 1, 5, 2, Q("45.852939 mm")))
sketch2.addConstraint(Sketcher.Constraint("DistanceY", -1, 1, 7, 2, Q("42.751412 mm")))
sketch2.addConstraint(Sketcher.Constraint("DistanceX", -1, 1, 8, 1, Q("1.383888 mm")))
sketch2.addConstraint(Sketcher.Constraint("DistanceX", 7, 3, 5, 3, Q("0.853179 mm")))
sketch2.addConstraint(Sketcher.Constraint("DistanceY", 8, 3, 7, 3, Q("15.035812 mm")))
sketch2.addConstraint(Sketcher.Constraint("DistanceX", 8, 3, 3, 3, Q("31.672911 mm")))
sketch2.addConstraint(Sketcher.Constraint("DistanceY", 2, 2, 3, 2, Q("5.613159 mm")))
sketch2.addConstraint(Sketcher.Constraint("DistanceX", 5, 3, 4, 2, Q("1.94259 mm")))
sketch2.addConstraint(Sketcher.Constraint("DistanceX", 6, 2, 5, 2, Q("0.853179 mm")))
sketch2.addConstraint(Sketcher.Constraint("DistanceY", 9, 1, 8, 1, Q("2.78108 mm")))
pad2 = doc.addObject("PartDesign::Pad", "Pad001")
body.addObject(pad2)
pad2.Profile = sketch2
pad2.Length = 4

doc.recompute()
